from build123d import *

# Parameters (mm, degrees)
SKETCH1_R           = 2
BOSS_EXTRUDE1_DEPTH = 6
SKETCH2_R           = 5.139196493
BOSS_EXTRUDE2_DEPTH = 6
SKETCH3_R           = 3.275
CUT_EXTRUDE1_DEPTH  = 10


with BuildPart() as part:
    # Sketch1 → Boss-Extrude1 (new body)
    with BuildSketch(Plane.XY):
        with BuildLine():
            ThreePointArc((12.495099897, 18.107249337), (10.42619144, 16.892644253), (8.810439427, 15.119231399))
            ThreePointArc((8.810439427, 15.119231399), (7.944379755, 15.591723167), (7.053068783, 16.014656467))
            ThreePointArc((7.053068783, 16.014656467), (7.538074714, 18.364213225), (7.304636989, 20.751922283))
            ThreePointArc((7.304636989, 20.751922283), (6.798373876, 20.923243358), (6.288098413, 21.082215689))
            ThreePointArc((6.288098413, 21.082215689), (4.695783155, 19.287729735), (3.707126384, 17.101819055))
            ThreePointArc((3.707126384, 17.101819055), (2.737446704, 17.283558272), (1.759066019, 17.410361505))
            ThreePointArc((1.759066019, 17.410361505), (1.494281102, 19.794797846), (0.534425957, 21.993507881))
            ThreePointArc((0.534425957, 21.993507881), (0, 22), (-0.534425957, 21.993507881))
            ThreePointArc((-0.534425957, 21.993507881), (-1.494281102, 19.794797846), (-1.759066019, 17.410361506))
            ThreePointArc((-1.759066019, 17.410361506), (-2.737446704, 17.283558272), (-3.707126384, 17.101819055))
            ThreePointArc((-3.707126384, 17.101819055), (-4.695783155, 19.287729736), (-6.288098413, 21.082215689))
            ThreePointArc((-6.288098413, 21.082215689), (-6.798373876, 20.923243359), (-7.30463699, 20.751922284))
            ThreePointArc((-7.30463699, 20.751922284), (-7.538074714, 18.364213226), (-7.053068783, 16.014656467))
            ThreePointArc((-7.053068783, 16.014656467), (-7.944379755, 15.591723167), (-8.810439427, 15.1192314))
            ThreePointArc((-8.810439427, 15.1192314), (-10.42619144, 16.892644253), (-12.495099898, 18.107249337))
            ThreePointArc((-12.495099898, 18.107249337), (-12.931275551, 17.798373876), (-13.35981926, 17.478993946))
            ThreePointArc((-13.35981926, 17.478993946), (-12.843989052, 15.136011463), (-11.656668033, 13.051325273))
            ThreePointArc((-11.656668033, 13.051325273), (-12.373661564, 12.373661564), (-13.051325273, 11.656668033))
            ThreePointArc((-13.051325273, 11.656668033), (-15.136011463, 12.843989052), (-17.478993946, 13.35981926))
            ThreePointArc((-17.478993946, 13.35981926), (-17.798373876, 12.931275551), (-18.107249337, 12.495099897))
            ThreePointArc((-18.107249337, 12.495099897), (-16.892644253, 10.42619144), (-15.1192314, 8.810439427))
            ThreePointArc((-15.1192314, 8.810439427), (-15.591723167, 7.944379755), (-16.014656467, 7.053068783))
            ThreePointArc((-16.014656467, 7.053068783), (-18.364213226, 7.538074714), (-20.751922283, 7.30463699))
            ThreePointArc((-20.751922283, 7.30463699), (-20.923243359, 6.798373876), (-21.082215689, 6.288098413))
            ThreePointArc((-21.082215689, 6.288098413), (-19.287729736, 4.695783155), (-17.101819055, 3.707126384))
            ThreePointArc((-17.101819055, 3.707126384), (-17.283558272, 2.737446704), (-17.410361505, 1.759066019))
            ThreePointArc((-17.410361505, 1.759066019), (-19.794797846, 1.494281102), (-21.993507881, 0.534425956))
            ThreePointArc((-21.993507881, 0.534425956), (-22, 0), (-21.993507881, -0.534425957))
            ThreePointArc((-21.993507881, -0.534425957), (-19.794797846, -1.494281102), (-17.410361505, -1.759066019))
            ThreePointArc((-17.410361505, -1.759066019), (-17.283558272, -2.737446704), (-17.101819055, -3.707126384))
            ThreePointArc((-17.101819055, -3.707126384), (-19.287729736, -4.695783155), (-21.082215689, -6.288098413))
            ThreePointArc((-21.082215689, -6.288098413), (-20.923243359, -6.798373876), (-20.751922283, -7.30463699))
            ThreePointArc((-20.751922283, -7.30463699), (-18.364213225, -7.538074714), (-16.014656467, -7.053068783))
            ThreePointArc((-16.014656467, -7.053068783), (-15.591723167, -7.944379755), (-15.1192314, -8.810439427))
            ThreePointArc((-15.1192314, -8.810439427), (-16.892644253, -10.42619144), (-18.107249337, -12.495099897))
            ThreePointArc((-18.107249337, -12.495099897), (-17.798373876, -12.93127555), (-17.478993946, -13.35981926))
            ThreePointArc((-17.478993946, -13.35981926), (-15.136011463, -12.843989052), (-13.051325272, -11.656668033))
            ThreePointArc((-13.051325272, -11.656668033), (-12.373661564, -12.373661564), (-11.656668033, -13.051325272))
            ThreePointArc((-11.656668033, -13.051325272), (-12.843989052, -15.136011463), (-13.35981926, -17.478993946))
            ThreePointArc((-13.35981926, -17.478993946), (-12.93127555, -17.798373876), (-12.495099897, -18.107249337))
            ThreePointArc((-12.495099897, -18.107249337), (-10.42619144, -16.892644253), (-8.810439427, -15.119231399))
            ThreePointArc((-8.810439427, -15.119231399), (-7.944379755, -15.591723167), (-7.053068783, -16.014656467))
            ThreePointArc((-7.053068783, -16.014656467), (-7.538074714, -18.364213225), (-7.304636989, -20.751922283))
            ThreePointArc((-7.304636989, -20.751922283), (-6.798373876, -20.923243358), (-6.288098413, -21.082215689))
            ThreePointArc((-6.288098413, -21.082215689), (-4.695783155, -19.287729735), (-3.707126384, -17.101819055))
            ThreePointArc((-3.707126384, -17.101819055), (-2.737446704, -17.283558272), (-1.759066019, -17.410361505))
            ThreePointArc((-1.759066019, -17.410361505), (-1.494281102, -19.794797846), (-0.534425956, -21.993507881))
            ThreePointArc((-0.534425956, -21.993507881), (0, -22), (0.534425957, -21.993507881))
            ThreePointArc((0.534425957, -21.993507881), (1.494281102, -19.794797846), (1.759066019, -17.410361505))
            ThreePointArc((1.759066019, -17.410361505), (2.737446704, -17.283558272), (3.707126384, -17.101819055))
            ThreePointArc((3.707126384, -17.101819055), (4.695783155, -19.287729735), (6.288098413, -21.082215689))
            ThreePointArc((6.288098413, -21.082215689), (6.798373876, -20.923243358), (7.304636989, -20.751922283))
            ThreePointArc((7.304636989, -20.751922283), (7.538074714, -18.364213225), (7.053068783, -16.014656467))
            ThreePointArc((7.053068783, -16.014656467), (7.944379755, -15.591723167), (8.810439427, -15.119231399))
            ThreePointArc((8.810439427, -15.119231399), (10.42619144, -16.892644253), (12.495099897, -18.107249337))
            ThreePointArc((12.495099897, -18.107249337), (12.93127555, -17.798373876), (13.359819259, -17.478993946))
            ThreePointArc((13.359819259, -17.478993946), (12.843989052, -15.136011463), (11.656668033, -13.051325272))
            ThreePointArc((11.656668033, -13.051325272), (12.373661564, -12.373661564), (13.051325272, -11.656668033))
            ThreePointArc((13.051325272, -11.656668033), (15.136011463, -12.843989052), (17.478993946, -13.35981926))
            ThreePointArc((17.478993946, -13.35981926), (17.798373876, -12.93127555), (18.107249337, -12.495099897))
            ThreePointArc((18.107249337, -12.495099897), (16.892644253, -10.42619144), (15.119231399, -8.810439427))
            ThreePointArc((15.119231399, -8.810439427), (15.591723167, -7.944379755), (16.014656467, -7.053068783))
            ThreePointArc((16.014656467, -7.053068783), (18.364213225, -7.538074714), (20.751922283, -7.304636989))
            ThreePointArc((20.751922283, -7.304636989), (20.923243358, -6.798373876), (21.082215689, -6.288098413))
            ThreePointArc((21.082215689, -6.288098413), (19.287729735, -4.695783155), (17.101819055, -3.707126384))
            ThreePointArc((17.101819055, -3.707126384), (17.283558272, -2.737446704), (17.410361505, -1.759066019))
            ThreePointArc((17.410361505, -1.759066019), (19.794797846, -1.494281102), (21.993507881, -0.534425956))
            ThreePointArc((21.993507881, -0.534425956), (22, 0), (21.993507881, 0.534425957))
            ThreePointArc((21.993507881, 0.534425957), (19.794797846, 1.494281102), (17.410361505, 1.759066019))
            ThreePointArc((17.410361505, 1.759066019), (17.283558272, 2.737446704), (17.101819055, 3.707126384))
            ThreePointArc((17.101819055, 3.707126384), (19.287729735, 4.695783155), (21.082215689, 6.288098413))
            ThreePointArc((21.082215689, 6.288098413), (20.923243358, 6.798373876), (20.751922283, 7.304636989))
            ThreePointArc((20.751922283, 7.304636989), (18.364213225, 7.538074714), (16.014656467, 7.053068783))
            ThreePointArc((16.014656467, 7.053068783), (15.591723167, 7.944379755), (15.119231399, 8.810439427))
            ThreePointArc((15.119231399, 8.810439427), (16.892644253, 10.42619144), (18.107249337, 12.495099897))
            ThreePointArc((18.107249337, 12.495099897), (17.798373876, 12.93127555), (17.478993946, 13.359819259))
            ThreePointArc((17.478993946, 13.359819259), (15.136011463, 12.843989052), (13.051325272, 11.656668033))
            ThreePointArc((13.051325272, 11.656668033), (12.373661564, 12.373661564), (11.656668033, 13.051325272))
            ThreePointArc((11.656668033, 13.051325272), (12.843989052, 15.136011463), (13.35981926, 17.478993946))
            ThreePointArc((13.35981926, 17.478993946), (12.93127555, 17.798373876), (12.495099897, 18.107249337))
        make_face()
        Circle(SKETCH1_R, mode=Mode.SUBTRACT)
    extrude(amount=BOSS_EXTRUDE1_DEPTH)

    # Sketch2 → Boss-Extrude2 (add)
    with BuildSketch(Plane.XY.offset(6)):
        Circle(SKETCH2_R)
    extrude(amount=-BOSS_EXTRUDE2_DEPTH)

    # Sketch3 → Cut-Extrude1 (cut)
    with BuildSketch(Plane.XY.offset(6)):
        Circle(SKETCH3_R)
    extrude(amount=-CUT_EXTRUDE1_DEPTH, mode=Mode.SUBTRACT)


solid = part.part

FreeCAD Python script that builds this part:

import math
import FreeCAD as App
import Part
import Sketcher

V = App.Vector
Q = App.Units.Quantity

doc = App.newDocument("Part")
body = doc.addObject("PartDesign::Body", "Body")

# Sketch on XY plane
sketch1 = doc.addObject("Sketcher::SketchObject", "Sketch")
body.addObject(sketch1)
sketch1.AttachmentSupport = (doc.XY_Plane, [""])
sketch1.MapMode = "FlatFace"
sketch1.addGeometry([
    Part.ArcOfCircle(Part.Circle(V(15.5, 10.7, 0), V(0, 0, 1), 8), math.radians(112), math.radians(146)),  # 0
    Part.ArcOfCircle(Part.Circle(V(0, 0, 0), V(0, 0, 1), 17.5), math.radians(59.77), math.radians(66.23)),  # 1
    Part.ArcOfCircle(Part.Circle(V(-0.5, 18.8, 0), V(0, 0, 1), 8), math.radians(-20), math.radians(14)),  # 2
    Part.ArcOfCircle(Part.Circle(V(0, 0, 0), V(0, 0, 1), 22), math.radians(70.61), math.radians(73.39)),  # 3
    Part.ArcOfCircle(Part.Circle(V(11.4, 14.9, 0), V(0, 0, 1), 8), math.radians(130), math.radians(164)),  # 4
    Part.ArcOfCircle(Part.Circle(V(0, 0, 0), V(0, 0, 1), 17.5), math.radians(77.77), math.radians(84.23)),  # 5
    Part.ArcOfCircle(Part.Circle(V(-6.2, 17.7, 0), V(0, 0, 1), 8), math.radians(-2), math.radians(32)),  # 6
    Part.ArcOfCircle(Part.Circle(V(0, 0, 0), V(0, 0, 1), 22), math.radians(88.61), math.radians(91.39)),  # 7
    Part.ArcOfCircle(Part.Circle(V(6.2, 17.7, 0), V(0, 0, 1), 8), math.radians(148), math.radians(182)),  # 8
    Part.ArcOfCircle(Part.Circle(V(0, 0, 0), V(0, 0, 1), 17.5), math.radians(95.77), math.radians(102.23)),  # 9
    Part.ArcOfCircle(Part.Circle(V(-11.4, 14.9, 0), V(0, 0, 1), 8), math.radians(16), math.radians(50)),  # 10
    Part.ArcOfCircle(Part.Circle(V(0, 0, 0), V(0, 0, 1), 22), math.radians(106.61), math.radians(109.39)),  # 11
    Part.ArcOfCircle(Part.Circle(V(0.5, 18.8, 0), V(0, 0, 1), 8), math.radians(166), math.radians(200)),  # 12
    Part.ArcOfCircle(Part.Circle(V(0, 0, 0), V(0, 0, 1), 17.5), math.radians(113.77), math.radians(120.23)),  # 13
    Part.ArcOfCircle(Part.Circle(V(-15.5, 10.7, 0), V(0, 0, 1), 8), math.radians(34), math.radians(68)),  # 14
    Part.ArcOfCircle(Part.Circle(V(0, 0, 0), V(0, 0, 1), 22), math.radians(124.61), math.radians(127.39)),  # 15
    Part.ArcOfCircle(Part.Circle(V(-5.4, 18, 0), V(0, 0, 1), 8), math.radians(-176), math.radians(-142)),  # 16
    Part.ArcOfCircle(Part.Circle(V(0, 0, 0), V(0, 0, 1), 17.5), math.radians(131.77), math.radians(138.23)),  # 17
    Part.ArcOfCircle(Part.Circle(V(-18, 5.4, 0), V(0, 0, 1), 8), math.radians(52), math.radians(86)),  # 18
    Part.ArcOfCircle(Part.Circle(V(0, 0, 0), V(0, 0, 1), 22), math.radians(142.61), math.radians(145.39)),  # 19
    Part.ArcOfCircle(Part.Circle(V(-10.7, 15.5, 0), V(0, 0, 1), 8), math.radians(-158), math.radians(-124)),  # 20
    Part.ArcOfCircle(Part.Circle(V(0, 0, 0), V(0, 0, 1), 17.5), math.radians(149.77), math.radians(156.23)),  # 21
    Part.ArcOfCircle(Part.Circle(V(-18.8, -0.5, 0), V(0, 0, 1), 8), math.radians(70), math.radians(104)),  # 22
    Part.ArcOfCircle(Part.Circle(V(0, 0, 0), V(0, 0, 1), 22), math.radians(160.61), math.radians(163.39)),  # 23
    Part.ArcOfCircle(Part.Circle(V(-14.9, 11.4, 0), V(0, 0, 1), 8), math.radians(-140), math.radians(-106)),  # 24
    Part.ArcOfCircle(Part.Circle(V(0, 0, 0), V(0, 0, 1), 17.5), math.radians(167.77), math.radians(174.23)),  # 25
    Part.ArcOfCircle(Part.Circle(V(-17.7, -6.2, 0), V(0, 0, 1), 8), math.radians(88), math.radians(122)),  # 26
    Part.ArcOfCircle(Part.Circle(V(0, 0, 0), V(0, 0, 1), 22), math.radians(178.61), math.radians(181.39)),  # 27
    Part.ArcOfCircle(Part.Circle(V(-17.7, 6.2, 0), V(0, 0, 1), 8), math.radians(-122), math.radians(-88)),  # 28
    Part.ArcOfCircle(Part.Circle(V(0, 0, 0), V(0, 0, 1), 17.5), math.radians(-174.23), math.radians(-167.77)),  # 29
    Part.ArcOfCircle(Part.Circle(V(-14.9, -11.4, 0), V(0, 0, 1), 8), math.radians(106), math.radians(140)),  # 30
    Part.ArcOfCircle(Part.Circle(V(0, 0, 0), V(0, 0, 1), 22), math.radians(-163.39), math.radians(-160.61)),  # 31
    Part.ArcOfCircle(Part.Circle(V(-18.8, 0.5, 0), V(0, 0, 1), 8), math.radians(-104), math.radians(-70)),  # 32
    Part.ArcOfCircle(Part.Circle(V(0, 0, 0), V(0, 0, 1), 17.5), math.radians(-156.23), math.radians(-149.77)),  # 33
    Part.ArcOfCircle(Part.Circle(V(-10.7, -15.5, 0), V(0, 0, 1), 8), math.radians(124), math.radians(158)),  # 34
    Part.ArcOfCircle(Part.Circle(V(0, 0, 0), V(0, 0, 1), 22), math.radians(-145.39), math.radians(-142.61)),  # 35
    Part.ArcOfCircle(Part.Circle(V(-18, -5.4, 0), V(0, 0, 1), 8), math.radians(-86), math.radians(-52)),  # 36
    Part.ArcOfCircle(Part.Circle(V(0, 0, 0), V(0, 0, 1), 17.5), math.radians(-138.23), math.radians(-131.77)),  # 37
    Part.ArcOfCircle(Part.Circle(V(-5.4, -18, 0), V(0, 0, 1), 8), math.radians(142), math.radians(176)),  # 38
    Part.ArcOfCircle(Part.Circle(V(0, 0, 0), V(0, 0, 1), 22), math.radians(-127.39), math.radians(-124.61)),  # 39
    Part.ArcOfCircle(Part.Circle(V(-15.5, -10.7, 0), V(0, 0, 1), 8), math.radians(-68), math.radians(-34)),  # 40
    Part.ArcOfCircle(Part.Circle(V(0, 0, 0), V(0, 0, 1), 17.5), math.radians(-120.23), math.radians(-113.77)),  # 41
    Part.ArcOfCircle(Part.Circle(V(0.5, -18.8, 0), V(0, 0, 1), 8), math.radians(160), math.radians(194)),  # 42
    Part.ArcOfCircle(Part.Circle(V(0, 0, 0), V(0, 0, 1), 22), math.radians(-109.39), math.radians(-106.61)),  # 43
    Part.ArcOfCircle(Part.Circle(V(-11.4, -14.9, 0), V(0, 0, 1), 8), math.radians(-50), math.radians(-16)),  # 44
    Part.ArcOfCircle(Part.Circle(V(0, 0, 0), V(0, 0, 1), 17.5), math.radians(-102.23), math.radians(-95.77)),  # 45
    Part.ArcOfCircle(Part.Circle(V(6.2, -17.7, 0), V(0, 0, 1), 8), math.radians(178), math.radians(212)),  # 46
    Part.ArcOfCircle(Part.Circle(V(0, 0, 0), V(0, 0, 1), 22), math.radians(-91.39), math.radians(-88.61)),  # 47
    Part.ArcOfCircle(Part.Circle(V(-6.2, -17.7, 0), V(0, 0, 1), 8), math.radians(-32), math.radians(2)),  # 48
    Part.ArcOfCircle(Part.Circle(V(0, 0, 0), V(0, 0, 1), 17.5), math.radians(-84.23), math.radians(-77.77)),  # 49
    Part.ArcOfCircle(Part.Circle(V(11.4, -14.9, 0), V(0, 0, 1), 8), math.radians(-164), math.radians(-130)),  # 50
    Part.ArcOfCircle(Part.Circle(V(0, 0, 0), V(0, 0, 1), 22), math.radians(-73.39), math.radians(-70.61)),  # 51
    Part.ArcOfCircle(Part.Circle(V(-0.5, -18.8, 0), V(0, 0, 1), 8), math.radians(-14), math.radians(20)),  # 52
    Part.ArcOfCircle(Part.Circle(V(0, 0, 0), V(0, 0, 1), 17.5), math.radians(-66.23), math.radians(-59.77)),  # 53
    Part.ArcOfCircle(Part.Circle(V(15.5, -10.7, 0), V(0, 0, 1), 8), math.radians(-146), math.radians(-112)),  # 54
    Part.ArcOfCircle(Part.Circle(V(0, 0, 0), V(0, 0, 1), 22), math.radians(-55.39), math.radians(-52.61)),  # 55
    Part.ArcOfCircle(Part.Circle(V(5.4, -18, 0), V(0, 0, 1), 8), math.radians(4), math.radians(38)),  # 56
    Part.ArcOfCircle(Part.Circle(V(0, 0, 0), V(0, 0, 1), 17.5), math.radians(-48.23), math.radians(-41.77)),  # 57
    Part.ArcOfCircle(Part.Circle(V(18, -5.4, 0), V(0, 0, 1), 8), math.radians(-128), math.radians(-94)),  # 58
    Part.ArcOfCircle(Part.Circle(V(0, 0, 0), V(0, 0, 1), 22), math.radians(-37.39), math.radians(-34.61)),  # 59
    Part.ArcOfCircle(Part.Circle(V(10.7, -15.5, 0), V(0, 0, 1), 8), math.radians(22), math.radians(56)),  # 60
    Part.ArcOfCircle(Part.Circle(V(0, 0, 0), V(0, 0, 1), 17.5), math.radians(-30.23), math.radians(-23.77)),  # 61
    Part.ArcOfCircle(Part.Circle(V(18.8, 0.5, 0), V(0, 0, 1), 8), math.radians(-110), math.radians(-76)),  # 62
    Part.ArcOfCircle(Part.Circle(V(0, 0, 0), V(0, 0, 1), 22), math.radians(-19.39), math.radians(-16.61)),  # 63
    Part.ArcOfCircle(Part.Circle(V(14.9, -11.4, 0), V(0, 0, 1), 8), math.radians(40), math.radians(74)),  # 64
    Part.ArcOfCircle(Part.Circle(V(0, 0, 0), V(0, 0, 1), 17.5), math.radians(-12.23), math.radians(-5.77)),  # 65
    Part.ArcOfCircle(Part.Circle(V(17.7, 6.2, 0), V(0, 0, 1), 8), math.radians(-92), math.radians(-58)),  # 66
    Part.ArcOfCircle(Part.Circle(V(0, 0, 0), V(0, 0, 1), 22), math.radians(-1.39), math.radians(1.39)),  # 67
    Part.ArcOfCircle(Part.Circle(V(17.7, -6.2, 0), V(0, 0, 1), 8), math.radians(58), math.radians(92)),  # 68
    Part.ArcOfCircle(Part.Circle(V(0, 0, 0), V(0, 0, 1), 17.5), math.radians(5.77), math.radians(12.23)),  # 69
    Part.ArcOfCircle(Part.Circle(V(14.9, 11.4, 0), V(0, 0, 1), 8), math.radians(-74), math.radians(-40)),  # 70
    Part.ArcOfCircle(Part.Circle(V(0, 0, 0), V(0, 0, 1), 22), math.radians(16.61), math.radians(19.39)),  # 71
    Part.ArcOfCircle(Part.Circle(V(18.8, -0.5, 0), V(0, 0, 1), 8), math.radians(76), math.radians(110)),  # 72
    Part.ArcOfCircle(Part.Circle(V(0, 0, 0), V(0, 0, 1), 17.5), math.radians(23.77), math.radians(30.23)),  # 73
    Part.ArcOfCircle(Part.Circle(V(10.7, 15.5, 0), V(0, 0, 1), 8), math.radians(-56), math.radians(-22)),  # 74
    Part.ArcOfCircle(Part.Circle(V(0, 0, 0), V(0, 0, 1), 22), math.radians(34.61), math.radians(37.39)),  # 75
    Part.ArcOfCircle(Part.Circle(V(18, 5.4, 0), V(0, 0, 1), 8), math.radians(94), math.radians(128)),  # 76
    Part.ArcOfCircle(Part.Circle(V(0, 0, 0), V(0, 0, 1), 17.5), math.radians(41.77), math.radians(48.23)),  # 77
    Part.ArcOfCircle(Part.Circle(V(5.4, 18, 0), V(0, 0, 1), 8), math.radians(-38), math.radians(-4)),  # 78
    Part.ArcOfCircle(Part.Circle(V(0, 0, 0), V(0, 0, 1), 22), math.radians(52.61), math.radians(55.39)),  # 79
    Part.Circle(V(0, 0, 0), V(0, 0, 1), 2),  # 80
], False)
sketch1.addConstraint([
    Sketcher.Constraint("Coincident", 0, 2, 1, 1),
    Sketcher.Constraint("Coincident", 1, 2, 2, 1),
    Sketcher.Constraint("Coincident", 2, 2, 3, 1),
    Sketcher.Constraint("Coincident", 3, 2, 4, 1),
    Sketcher.Constraint("Coincident", 4, 2, 5, 1),
    Sketcher.Constraint("Coincident", 5, 2, 6, 1),
    Sketcher.Constraint("Coincident", 6, 2, 7, 1),
    Sketcher.Constraint("Coincident", 7, 2, 8, 1),
    Sketcher.Constraint("Coincident", 8, 2, 9, 1),
    Sketcher.Constraint("Coincident", 9, 2, 10, 1),
    Sketcher.Constraint("Coincident", 10, 2, 11, 1),
    Sketcher.Constraint("Coincident", 11, 2, 12, 1),
    Sketcher.Constraint("Coincident", 12, 2, 13, 1),
    Sketcher.Constraint("Coincident", 13, 2, 14, 1),
    Sketcher.Constraint("Coincident", 14, 2, 15, 1),
    Sketcher.Constraint("Coincident", 15, 2, 16, 1),
    Sketcher.Constraint("Coincident", 16, 2, 17, 1),
    Sketcher.Constraint("Coincident", 17, 2, 18, 1),
    Sketcher.Constraint("Coincident", 18, 2, 19, 1),
    Sketcher.Constraint("Coincident", 19, 2, 20, 1),
    Sketcher.Constraint("Coincident", 20, 2, 21, 1),
    Sketcher.Constraint("Coincident", 21, 2, 22, 1),
    Sketcher.Constraint("Coincident", 22, 2, 23, 1),
    Sketcher.Constraint("Coincident", 23, 2, 24, 1),
    Sketcher.Constraint("Coincident", 24, 2, 25, 1),
    Sketcher.Constraint("Coincident", 25, 2, 26, 1),
    Sketcher.Constraint("Coincident", 26, 2, 27, 1),
    Sketcher.Constraint("Coincident", 27, 2, 28, 1),
    Sketcher.Constraint("Coincident", 28, 2, 29, 1),
    Sketcher.Constraint("Coincident", 29, 2, 30, 1),
    Sketcher.Constraint("Coincident", 30, 2, 31, 1),
    Sketcher.Constraint("Coincident", 31, 2, 32, 1),
    Sketcher.Constraint("Coincident", 32, 2, 33, 1),
    Sketcher.Constraint("Coincident", 33, 2, 34, 1),
    Sketcher.Constraint("Coincident", 34, 2, 35, 1),
    Sketcher.Constraint("Coincident", 35, 2, 36, 1),
    Sketcher.Constraint("Coincident", 36, 2, 37, 1),
    Sketcher.Constraint("Coincident", 37, 2, 38, 1),
    Sketcher.Constraint("Coincident", 38, 2, 39, 1),
    Sketcher.Constraint("Coincident", 39, 2, 40, 1),
    Sketcher.Constraint("Coincident", 40, 2, 41, 1),
    Sketcher.Constraint("Coincident", 41, 2, 42, 1),
    Sketcher.Constraint("Coincident", 42, 2, 43, 1),
    Sketcher.Constraint("Coincident", 43, 2, 44, 1),
    Sketcher.Constraint("Coincident", 44, 2, 45, 1),
    Sketcher.Constraint("Coincident", 45, 2, 46, 1),
    Sketcher.Constraint("Coincident", 46, 2, 47, 1),
    Sketcher.Constraint("Coincident", 47, 2, 48, 1),
    Sketcher.Constraint("Coincident", 48, 2, 49, 1),
    Sketcher.Constraint("Coincident", 49, 2, 50, 1),
    Sketcher.Constraint("Coincident", 50, 2, 51, 1),
    Sketcher.Constraint("Coincident", 51, 2, 52, 1),
    Sketcher.Constraint("Coincident", 52, 2, 53, 1),
    Sketcher.Constraint("Coincident", 53, 2, 54, 1),
    Sketcher.Constraint("Coincident", 54, 2, 55, 1),
    Sketcher.Constraint("Coincident", 55, 2, 56, 1),
    Sketcher.Constraint("Coincident", 56, 2, 57, 1),
    Sketcher.Constraint("Coincident", 57, 2, 58, 1),
    Sketcher.Constraint("Coincident", 58, 2, 59, 1),
    Sketcher.Constraint("Coincident", 59, 2, 60, 1),
    Sketcher.Constraint("Coincident", 60, 2, 61, 1),
    Sketcher.Constraint("Coincident", 61, 2, 62, 1),
    Sketcher.Constraint("Coincident", 62, 2, 63, 1),
    Sketcher.Constraint("Coincident", 63, 2, 64, 1),
    Sketcher.Constraint("Coincident", 64, 2, 65, 1),
    Sketcher.Constraint("Coincident", 65, 2, 66, 1),
    Sketcher.Constraint("Coincident", 66, 2, 67, 1),
    Sketcher.Constraint("Coincident", 67, 2, 68, 1),
    Sketcher.Constraint("Coincident", 68, 2, 69, 1),
    Sketcher.Constraint("Coincident", 69, 2, 70, 1),
    Sketcher.Constraint("Coincident", 70, 2, 71, 1),
    Sketcher.Constraint("Coincident", 71, 2, 72, 1),
    Sketcher.Constraint("Coincident", 72, 2, 73, 1),
    Sketcher.Constraint("Coincident", 73, 2, 74, 1),
    Sketcher.Constraint("Coincident", 74, 2, 75, 1),
    Sketcher.Constraint("Coincident", 75, 2, 76, 1),
    Sketcher.Constraint("Coincident", 76, 2, 77, 1),
    Sketcher.Constraint("Coincident", 77, 2, 78, 1),
    Sketcher.Constraint("Coincident", 78, 2, 79, 1),
    Sketcher.Constraint("Coincident", 79, 2, 0, 1),
    Sketcher.Constraint("Coincident", 1, 3, -1, 1),
    Sketcher.Constraint("Coincident", 3, 3, -1, 1),
    Sketcher.Constraint("Coincident", 5, 3, -1, 1),
    Sketcher.Constraint("Coincident", 7, 3, -1, 1),
    Sketcher.Constraint("Coincident", 9, 3, -1, 1),
    Sketcher.Constraint("Coincident", 11, 3, -1, 1),
    Sketcher.Constraint("Coincident", 13, 3, -1, 1),
    Sketcher.Constraint("Coincident", 15, 3, -1, 1),
    Sketcher.Constraint("Coincident", 17, 3, -1, 1),
    Sketcher.Constraint("Coincident", 19, 3, -1, 1),
    Sketcher.Constraint("Coincident", 21, 3, -1, 1),
    Sketcher.Constraint("Coincident", 23, 3, -1, 1),
    Sketcher.Constraint("Coincident", 25, 3, -1, 1),
    Sketcher.Constraint("Coincident", 27, 3, -1, 1),
    Sketcher.Constraint("Coincident", 29, 3, -1, 1),
    Sketcher.Constraint("Coincident", 31, 3, -1, 1),
    Sketcher.Constraint("Coincident", 33, 3, -1, 1),
    Sketcher.Constraint("Coincident", 35, 3, -1, 1),
    Sketcher.Constraint("Coincident", 37, 3, -1, 1),
    Sketcher.Constraint("Coincident", 39, 3, -1, 1),
    Sketcher.Constraint("Coincident", 41, 3, -1, 1),
    Sketcher.Constraint("Coincident", 43, 3, -1, 1),
    Sketcher.Constraint("Coincident", 45, 3, -1, 1),
    Sketcher.Constraint("Coincident", 47, 3, -1, 1),
    Sketcher.Constraint("Coincident", 49, 3, -1, 1),
    Sketcher.Constraint("Coincident", 51, 3, -1, 1),
    Sketcher.Constraint("Coincident", 53, 3, -1, 1),
    Sketcher.Constraint("Coincident", 55, 3, -1, 1),
    Sketcher.Constraint("Coincident", 57, 3, -1, 1),
    Sketcher.Constraint("Coincident", 59, 3, -1, 1),
    Sketcher.Constraint("Coincident", 61, 3, -1, 1),
    Sketcher.Constraint("Coincident", 63, 3, -1, 1),
    Sketcher.Constraint("Coincident", 65, 3, -1, 1),
    Sketcher.Constraint("Coincident", 67, 3, -1, 1),
    Sketcher.Constraint("Coincident", 69, 3, -1, 1),
    Sketcher.Constraint("Coincident", 71, 3, -1, 1),
    Sketcher.Constraint("Coincident", 73, 3, -1, 1),
    Sketcher.Constraint("Coincident", 75, 3, -1, 1),
    Sketcher.Constraint("Coincident", 77, 3, -1, 1),
    Sketcher.Constraint("Coincident", 79, 3, -1, 1),
    Sketcher.Constraint("Coincident", 80, 3, -1, 1),
    Sketcher.Constraint("Equal", 0, 2),
    Sketcher.Constraint("Equal", 2, 4),
    Sketcher.Constraint("Equal", 1, 5),
    Sketcher.Constraint("Equal", 4, 6),
    Sketcher.Constraint("Equal", 3, 7),
    Sketcher.Constraint("Equal", 6, 8),
    Sketcher.Constraint("Equal", 5, 9),
    Sketcher.Constraint("Equal", 8, 10),
    Sketcher.Constraint("Equal", 7, 11),
    Sketcher.Constraint("Equal", 10, 12),
    Sketcher.Constraint("Equal", 9, 13),
    Sketcher.Constraint("Equal", 12, 14),
    Sketcher.Constraint("Equal", 11, 15),
    Sketcher.Constraint("Equal", 14, 16),
    Sketcher.Constraint("Equal", 13, 17),
    Sketcher.Constraint("Equal", 16, 18),
    Sketcher.Constraint("Equal", 15, 19),
    Sketcher.Constraint("Equal", 18, 20),
    Sketcher.Constraint("Equal", 17, 21),
    Sketcher.Constraint("Equal", 20, 22),
    Sketcher.Constraint("Equal", 19, 23),
    Sketcher.Constraint("Equal", 22, 24),
    Sketcher.Constraint("Equal", 21, 25),
    Sketcher.Constraint("Equal", 24, 26),
    Sketcher.Constraint("Equal", 19, 27),
    Sketcher.Constraint("Equal", 26, 28),
    Sketcher.Constraint("Equal", 25, 29),
    Sketcher.Constraint("Equal", 28, 30),
    Sketcher.Constraint("Equal", 23, 31),
    Sketcher.Constraint("Equal", 30, 32),
    Sketcher.Constraint("Equal", 29, 33),
    Sketcher.Constraint("Equal", 32, 34),
    Sketcher.Constraint("Equal", 27, 35),
    Sketcher.Constraint("Equal", 34, 36),
    Sketcher.Constraint("Equal", 33, 37),
    Sketcher.Constraint("Equal", 36, 38),
    Sketcher.Constraint("Equal", 35, 39),
    Sketcher.Constraint("Equal", 38, 40),
    Sketcher.Constraint("Equal", 37, 41),
    Sketcher.Constraint("Equal", 40, 42),
    Sketcher.Constraint("Equal", 39, 43),
    Sketcher.Constraint("Equal", 42, 44),
    Sketcher.Constraint("Equal", 41, 45),
    Sketcher.Constraint("Equal", 44, 46),
    Sketcher.Constraint("Equal", 43, 47),
    Sketcher.Constraint("Equal", 46, 48),
    Sketcher.Constraint("Equal", 45, 49),
    Sketcher.Constraint("Equal", 48, 50),
    Sketcher.Constraint("Equal", 47, 51),
    Sketcher.Constraint("Equal", 50, 52),
    Sketcher.Constraint("Equal", 49, 53),
    Sketcher.Constraint("Equal", 52, 54),
    Sketcher.Constraint("Equal", 51, 55),
    Sketcher.Constraint("Equal", 54, 56),
    Sketcher.Constraint("Equal", 53, 57),
    Sketcher.Constraint("Equal", 56, 58),
    Sketcher.Constraint("Equal", 55, 59),
    Sketcher.Constraint("Equal", 58, 60),
    Sketcher.Constraint("Equal", 57, 61),
    Sketcher.Constraint("Equal", 60, 62),
    Sketcher.Constraint("Equal", 59, 63),
    Sketcher.Constraint("Equal", 62, 64),
    Sketcher.Constraint("Equal", 61, 65),
    Sketcher.Constraint("Equal", 64, 66),
    Sketcher.Constraint("Equal", 63, 67),
    Sketcher.Constraint("Equal", 66, 68),
    Sketcher.Constraint("Equal", 65, 69),
    Sketcher.Constraint("Equal", 68, 70),
    Sketcher.Constraint("Equal", 67, 71),
    Sketcher.Constraint("Equal", 70, 72),
    Sketcher.Constraint("Equal", 69, 73),
    Sketcher.Constraint("Equal", 72, 74),
    Sketcher.Constraint("Equal", 71, 75),
    Sketcher.Constraint("Equal", 74, 76),
    Sketcher.Constraint("Equal", 73, 77),
    Sketcher.Constraint("Equal", 76, 78),
    Sketcher.Constraint("Equal", 75, 79),
    Sketcher.Constraint("Symmetric", 0, 3, 40, 3, -1, 1),
    Sketcher.Constraint("Symmetric", 2, 3, 42, 3, -1, 1),
    Sketcher.Constraint("Symmetric", 4, 3, 44, 3, -1, 1),
    Sketcher.Constraint("Symmetric", 6, 3, 46, 3, -1, 1),
    Sketcher.Constraint("Symmetric", 8, 3, 48, 3, -1, 1),
    Sketcher.Constraint("Symmetric", 10, 3, 50, 3, -1, 1),
    Sketcher.Constraint("Symmetric", 12, 3, 52, 3, -1, 1),
    Sketcher.Constraint("Symmetric", 14, 3, 54, 3, -1, 1),
    Sketcher.Constraint("Symmetric", 16, 3, 56, 3, -1, 1),
    Sketcher.Constraint("Symmetric", 18, 3, 58, 3, -1, 1),
    Sketcher.Constraint("Symmetric", 20, 3, 60, 3, -1, 1),
    Sketcher.Constraint("Symmetric", 22, 3, 62, 3, -1, 1),
    Sketcher.Constraint("Symmetric", 24, 3, 64, 3, -1, 1),
    Sketcher.Constraint("Symmetric", 26, 3, 66, 3, -1, 1),
    Sketcher.Constraint("Symmetric", 28, 3, 68, 3, -1, 1),
    Sketcher.Constraint("Symmetric", 30, 3, 70, 3, -1, 1),
    Sketcher.Constraint("Symmetric", 32, 3, 72, 3, -1, 1),
    Sketcher.Constraint("Symmetric", 34, 3, 74, 3, -1, 1),
    Sketcher.Constraint("Symmetric", 36, 3, 76, 3, -1, 1),
    Sketcher.Constraint("Symmetric", 38, 3, 78, 3, -1, 1),
    Sketcher.Constraint("Symmetric", 6, 3, 8, 3, -2),
    Sketcher.Constraint("Symmetric", 4, 3, 10, 3, -2),
    Sketcher.Constraint("Symmetric", 2, 3, 12, 3, -2),
    Sketcher.Constraint("Symmetric", 0, 3, 14, 3, -2),
    Sketcher.Constraint("Symmetric", 38, 3, 56, 3, -2),
    Sketcher.Constraint("Symmetric", 36, 3, 58, 3, -2),
    Sketcher.Constraint("Symmetric", 34, 3, 60, 3, -2),
    Sketcher.Constraint("Symmetric", 32, 3, 62, 3, -2),
    Sketcher.Constraint("Symmetric", 30, 3, 64, 3, -2),
    Sketcher.Constraint("Symmetric", 28, 3, 66, 3, -2),
    Sketcher.Constraint("Diameter", 80, Q("4 mm")),
    Sketcher.Constraint("Radius", 0, Q("8 mm")),
    Sketcher.Constraint("Radius", 3, Q("22.000001 mm")),
    Sketcher.Constraint("Radius", 1, Q("17.499 mm")),
    Sketcher.Constraint("DistanceX", -1, 1, 3, 2, Q("6.288098 mm")),
    Sketcher.Constraint("DistanceX", 14, 2, -1, 1, Q("12.4951 mm")),
    Sketcher.Constraint("DistanceY", -1, 1, 19, 2, Q("12.4951 mm")),
    Sketcher.Constraint("DistanceY", -1, 1, 23, 2, Q("6.288098 mm")),
    Sketcher.Constraint("DistanceX", -1, 1, 0, 3, Q("15.46507 mm")),
    Sketcher.Constraint("DistanceX", 2, 3, -1, 1, Q("0.450669 mm")),
    Sketcher.Constraint("DistanceY", -1, 1, 2, 3, Q("18.788448 mm")),
    Sketcher.Constraint("DistanceX", -1, 1, 4, 3, Q("11.408172 mm")),
    Sketcher.Constraint("DistanceX", 6, 3, -1, 1, Q("6.234561 mm")),
    Sketcher.Constraint("DistanceY", -1, 1, 6, 3, Q("17.729612 mm")),
    Sketcher.Constraint("DistanceX", 16, 3, -1, 1, Q("5.377338 mm")),
    Sketcher.Constraint("DistanceY", -1, 1, 16, 3, Q("18.00814 mm")),
    Sketcher.Constraint("DistanceX", 18, 3, -1, 1, Q("18.00814 mm")),
    Sketcher.Constraint("DistanceY", -1, 1, 18, 3, Q("5.377338 mm")),
    Sketcher.Constraint("DistanceY", -1, 1, 20, 3, Q("15.46507 mm")),
    Sketcher.Constraint("DistanceX", 22, 3, -1, 1, Q("18.788448 mm")),
    Sketcher.Constraint("DistanceY", 22, 3, -1, 1, Q("0.450669 mm")),
    Sketcher.Constraint("DistanceY", -1, 1, 24, 3, Q("11.408172 mm")),
    Sketcher.Constraint("DistanceX", 26, 3, -1, 1, Q("17.729612 mm")),
    Sketcher.Constraint("DistanceY", 26, 3, -1, 1, Q("6.234561 mm")),
])
pad1 = doc.addObject("PartDesign::Pad", "Pad")
body.addObject(pad1)
pad1.Profile = sketch1
pad1.Length = 6

# Sketch on XY plane
sketch2 = doc.addObject("Sketcher::SketchObject", "Sketch001")
body.addObject(sketch2)
sketch2.AttachmentSupport = (doc.XY_Plane, [""])
sketch2.MapMode = "FlatFace"
sketch2.AttachmentOffset = App.Placement(V(0, 0, 6), App.Rotation())
sketch2.addGeometry(Part.Circle(V(0, 0, 0), V(0, 0, 1), 5), False)
sketch2.addConstraint([
    Sketcher.Constraint("Coincident", 0, 3, -1, 1),
    Sketcher.Constraint("Diameter", 0, Q("10.278393 mm")),
])
pad2 = doc.addObject("PartDesign::Pad", "Pad001")
body.addObject(pad2)
pad2.Profile = sketch2
pad2.Length = 6
pad2.Reversed = True

# Sketch on XY plane
sketch3 = doc.addObject("Sketcher::SketchObject", "Sketch002")
body.addObject(sketch3)
sketch3.AttachmentSupport = (doc.XY_Plane, [""])
sketch3.MapMode = "FlatFace"
sketch3.AttachmentOffset = App.Placement(V(0, 0, 6), App.Rotation())
sketch3.addGeometry(Part.Circle(V(0, 0, 0), V(0, 0, 1), 3.3), False)
sketch3.addConstraint([
    Sketcher.Constraint("Coincident", 0, 3, -1, 1),
    Sketcher.Constraint("Diameter", 0, Q("6.55 mm")),
])
pocket1 = doc.addObject("PartDesign::Pocket", "Pocket")
body.addObject(pocket1)
pocket1.Profile = sketch3
pocket1.Length = 10

doc.recompute()
